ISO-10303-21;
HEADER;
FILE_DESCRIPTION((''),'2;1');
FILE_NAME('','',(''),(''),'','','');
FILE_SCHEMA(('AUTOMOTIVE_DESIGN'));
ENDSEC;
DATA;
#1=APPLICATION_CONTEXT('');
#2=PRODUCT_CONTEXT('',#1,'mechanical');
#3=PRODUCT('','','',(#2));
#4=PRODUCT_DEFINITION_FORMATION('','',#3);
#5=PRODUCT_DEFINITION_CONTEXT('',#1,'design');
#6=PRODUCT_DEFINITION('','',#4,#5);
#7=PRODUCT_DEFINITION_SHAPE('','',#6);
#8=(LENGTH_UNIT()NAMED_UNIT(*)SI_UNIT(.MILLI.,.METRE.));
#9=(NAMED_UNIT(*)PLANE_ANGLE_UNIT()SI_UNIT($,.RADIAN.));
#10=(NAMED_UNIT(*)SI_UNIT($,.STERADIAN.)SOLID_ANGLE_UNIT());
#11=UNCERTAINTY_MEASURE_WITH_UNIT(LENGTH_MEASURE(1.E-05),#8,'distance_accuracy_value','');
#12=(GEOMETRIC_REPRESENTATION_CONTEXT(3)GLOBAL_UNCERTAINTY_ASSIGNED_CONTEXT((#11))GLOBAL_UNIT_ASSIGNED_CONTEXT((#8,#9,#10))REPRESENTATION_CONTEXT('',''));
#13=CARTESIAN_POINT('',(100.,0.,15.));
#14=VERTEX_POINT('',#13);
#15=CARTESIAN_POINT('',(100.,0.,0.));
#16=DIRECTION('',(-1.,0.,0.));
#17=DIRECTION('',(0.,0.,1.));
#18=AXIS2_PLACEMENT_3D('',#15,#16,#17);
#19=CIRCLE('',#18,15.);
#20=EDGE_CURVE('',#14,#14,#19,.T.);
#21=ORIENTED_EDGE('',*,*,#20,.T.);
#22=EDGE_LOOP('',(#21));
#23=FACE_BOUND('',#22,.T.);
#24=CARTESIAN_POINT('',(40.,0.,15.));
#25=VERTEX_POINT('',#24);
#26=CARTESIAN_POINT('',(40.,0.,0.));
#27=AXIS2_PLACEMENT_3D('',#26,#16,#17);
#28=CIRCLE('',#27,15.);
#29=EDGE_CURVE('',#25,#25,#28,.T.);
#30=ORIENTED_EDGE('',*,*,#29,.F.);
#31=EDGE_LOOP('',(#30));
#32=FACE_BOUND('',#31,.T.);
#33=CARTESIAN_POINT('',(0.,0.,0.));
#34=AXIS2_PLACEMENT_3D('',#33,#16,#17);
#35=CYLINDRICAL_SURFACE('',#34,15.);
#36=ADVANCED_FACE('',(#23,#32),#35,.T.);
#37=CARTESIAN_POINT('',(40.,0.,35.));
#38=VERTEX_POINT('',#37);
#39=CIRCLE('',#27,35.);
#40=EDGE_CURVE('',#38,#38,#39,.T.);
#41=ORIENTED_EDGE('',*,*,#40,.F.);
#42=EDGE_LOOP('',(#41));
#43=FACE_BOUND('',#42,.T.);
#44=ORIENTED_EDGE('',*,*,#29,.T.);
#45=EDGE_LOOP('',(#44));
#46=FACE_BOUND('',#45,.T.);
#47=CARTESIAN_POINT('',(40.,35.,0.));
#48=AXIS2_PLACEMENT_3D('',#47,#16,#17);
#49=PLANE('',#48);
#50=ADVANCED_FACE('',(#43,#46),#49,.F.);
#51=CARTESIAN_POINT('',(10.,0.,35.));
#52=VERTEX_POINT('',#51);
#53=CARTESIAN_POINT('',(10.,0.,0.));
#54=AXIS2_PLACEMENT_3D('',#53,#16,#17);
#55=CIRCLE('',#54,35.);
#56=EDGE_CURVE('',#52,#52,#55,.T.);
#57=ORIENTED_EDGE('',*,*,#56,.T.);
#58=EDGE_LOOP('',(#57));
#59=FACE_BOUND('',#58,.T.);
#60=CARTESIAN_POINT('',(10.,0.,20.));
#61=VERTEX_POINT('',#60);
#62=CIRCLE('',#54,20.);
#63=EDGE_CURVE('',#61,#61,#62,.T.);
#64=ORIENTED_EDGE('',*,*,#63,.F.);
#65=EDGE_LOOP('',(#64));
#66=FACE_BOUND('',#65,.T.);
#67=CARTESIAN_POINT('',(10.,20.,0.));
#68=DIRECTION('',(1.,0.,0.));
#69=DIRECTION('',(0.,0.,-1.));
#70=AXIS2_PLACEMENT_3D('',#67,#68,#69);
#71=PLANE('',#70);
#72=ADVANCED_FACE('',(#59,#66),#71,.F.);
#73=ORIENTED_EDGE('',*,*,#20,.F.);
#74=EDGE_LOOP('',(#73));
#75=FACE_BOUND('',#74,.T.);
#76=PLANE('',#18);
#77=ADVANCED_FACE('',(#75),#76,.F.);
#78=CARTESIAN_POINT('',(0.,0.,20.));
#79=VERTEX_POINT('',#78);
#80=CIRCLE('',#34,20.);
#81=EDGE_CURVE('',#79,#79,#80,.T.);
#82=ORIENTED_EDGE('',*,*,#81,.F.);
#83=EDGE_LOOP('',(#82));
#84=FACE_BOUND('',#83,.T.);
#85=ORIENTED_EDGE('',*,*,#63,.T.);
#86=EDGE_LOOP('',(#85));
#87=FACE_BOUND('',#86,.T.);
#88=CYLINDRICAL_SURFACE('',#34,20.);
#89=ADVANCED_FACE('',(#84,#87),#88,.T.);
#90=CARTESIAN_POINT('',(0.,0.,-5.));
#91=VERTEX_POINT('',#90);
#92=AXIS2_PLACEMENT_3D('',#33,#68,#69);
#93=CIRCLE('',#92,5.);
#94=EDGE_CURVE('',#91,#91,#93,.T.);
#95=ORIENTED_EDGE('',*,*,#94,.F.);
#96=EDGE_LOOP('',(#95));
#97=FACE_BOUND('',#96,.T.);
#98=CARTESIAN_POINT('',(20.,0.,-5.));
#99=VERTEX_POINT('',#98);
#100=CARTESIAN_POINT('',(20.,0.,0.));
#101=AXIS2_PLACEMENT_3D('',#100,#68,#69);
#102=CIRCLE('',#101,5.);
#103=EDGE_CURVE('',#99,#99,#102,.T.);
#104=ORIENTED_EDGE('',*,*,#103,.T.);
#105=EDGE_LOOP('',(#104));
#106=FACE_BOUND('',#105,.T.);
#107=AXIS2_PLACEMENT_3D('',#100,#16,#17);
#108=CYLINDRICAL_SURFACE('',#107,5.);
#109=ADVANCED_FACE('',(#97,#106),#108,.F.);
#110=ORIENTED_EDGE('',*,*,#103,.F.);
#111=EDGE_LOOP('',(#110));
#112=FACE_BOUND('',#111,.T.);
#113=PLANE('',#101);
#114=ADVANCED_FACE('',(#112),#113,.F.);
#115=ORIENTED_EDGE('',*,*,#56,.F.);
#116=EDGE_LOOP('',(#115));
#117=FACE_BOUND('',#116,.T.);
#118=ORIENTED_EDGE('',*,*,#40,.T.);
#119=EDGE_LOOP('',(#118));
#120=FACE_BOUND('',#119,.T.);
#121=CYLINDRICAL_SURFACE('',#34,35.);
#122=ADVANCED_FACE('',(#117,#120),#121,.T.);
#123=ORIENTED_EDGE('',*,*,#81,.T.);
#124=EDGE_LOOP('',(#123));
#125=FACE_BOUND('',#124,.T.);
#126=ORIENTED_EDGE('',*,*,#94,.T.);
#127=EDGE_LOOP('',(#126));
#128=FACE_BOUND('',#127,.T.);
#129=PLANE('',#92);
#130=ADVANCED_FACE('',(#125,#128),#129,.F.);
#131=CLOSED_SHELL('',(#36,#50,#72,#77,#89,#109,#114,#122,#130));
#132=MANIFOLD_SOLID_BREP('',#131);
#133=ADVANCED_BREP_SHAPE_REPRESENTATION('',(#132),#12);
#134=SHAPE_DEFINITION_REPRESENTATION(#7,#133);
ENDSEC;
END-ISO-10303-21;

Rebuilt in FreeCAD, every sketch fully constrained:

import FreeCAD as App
import Part
import Sketcher

V = App.Vector


def add_polygon(sketch, points):
    """Adds a closed chain of lines whose ends are joined by coincident constraints."""
    first, n = sketch.GeometryCount, len(points)
    for a, b in zip(points, points[1:] + points[:1]):
        sketch.addGeometry(Part.LineSegment(App.Vector(*a, 0), App.Vector(*b, 0)), False)
    for i in range(n):
        sketch.addConstraint(Sketcher.Constraint("Coincident", first + i, 2, first + (i + 1) % n, 1))

doc = App.newDocument("Part")
body = doc.addObject("PartDesign::Body", "Body")

# Sketch on XY plane
sketch1 = body.newObject("Sketcher::SketchObject", "Sketch")
sketch1.AttachmentSupport = (doc.getObject("XY_Plane"), [""])
sketch1.MapMode = "FlatFace"
add_polygon(sketch1, [(0, 0), (100, 0), (100, 15), (40, 15), (40, 35), (10, 35), (10, 20), (0, 20)])  # lines 0-7
sketch1.addConstraint(Sketcher.Constraint("Horizontal", 0))
sketch1.addConstraint(Sketcher.Constraint("Vertical", 1))
sketch1.addConstraint(Sketcher.Constraint("Horizontal", 2))
sketch1.addConstraint(Sketcher.Constraint("Vertical", 3))
sketch1.addConstraint(Sketcher.Constraint("Horizontal", 4))
sketch1.addConstraint(Sketcher.Constraint("Vertical", 5))
sketch1.addConstraint(Sketcher.Constraint("Horizontal", 6))
sketch1.addConstraint(Sketcher.Constraint("Vertical", 7))
sketch1.addConstraint(Sketcher.Constraint("Coincident", 7, 2, -1, 1))
sketch1.addConstraint(Sketcher.Constraint("Equal", 1, 5))
sketch1.addConstraint(Sketcher.Constraint("DistanceX", 0, 1, 0, 2, 100.0))
sketch1.addConstraint(Sketcher.Constraint("DistanceX", 2, 2, 2, 1, 60.0))
sketch1.addConstraint(Sketcher.Constraint("DistanceX", 4, 2, 4, 1, 30.0))
sketch1.addConstraint(Sketcher.Constraint("DistanceY", 1, 1, 1, 2, 15.0))
sketch1.addConstraint(Sketcher.Constraint("DistanceY", 3, 1, 3, 2, 20.0))
revolution = body.newObject("PartDesign::Revolution", "Revolution")
revolution.Profile = sketch1
revolution.ReferenceAxis = (sketch1, ["H_Axis"])
revolution.Angle = 360

# Sketch on YZ plane
sketch2 = body.newObject("Sketcher::SketchObject", "Sketch001")
sketch2.AttachmentSupport = (doc.getObject("YZ_Plane"), [""])
sketch2.MapMode = "FlatFace"
sketch2.addGeometry(Part.Circle(V(0, 0, 0), V(0, 0, 1), 5), False)
sketch2.addConstraint(Sketcher.Constraint("Coincident", 0, 3, -1, 1))
sketch2.addConstraint(Sketcher.Constraint("Diameter", 0, 10.0))
pocket1 = body.newObject("PartDesign::Pocket", "Pocket")
pocket1.Profile = sketch2
pocket1.Length = 20
pocket1.Reversed = True

doc.recompute()
